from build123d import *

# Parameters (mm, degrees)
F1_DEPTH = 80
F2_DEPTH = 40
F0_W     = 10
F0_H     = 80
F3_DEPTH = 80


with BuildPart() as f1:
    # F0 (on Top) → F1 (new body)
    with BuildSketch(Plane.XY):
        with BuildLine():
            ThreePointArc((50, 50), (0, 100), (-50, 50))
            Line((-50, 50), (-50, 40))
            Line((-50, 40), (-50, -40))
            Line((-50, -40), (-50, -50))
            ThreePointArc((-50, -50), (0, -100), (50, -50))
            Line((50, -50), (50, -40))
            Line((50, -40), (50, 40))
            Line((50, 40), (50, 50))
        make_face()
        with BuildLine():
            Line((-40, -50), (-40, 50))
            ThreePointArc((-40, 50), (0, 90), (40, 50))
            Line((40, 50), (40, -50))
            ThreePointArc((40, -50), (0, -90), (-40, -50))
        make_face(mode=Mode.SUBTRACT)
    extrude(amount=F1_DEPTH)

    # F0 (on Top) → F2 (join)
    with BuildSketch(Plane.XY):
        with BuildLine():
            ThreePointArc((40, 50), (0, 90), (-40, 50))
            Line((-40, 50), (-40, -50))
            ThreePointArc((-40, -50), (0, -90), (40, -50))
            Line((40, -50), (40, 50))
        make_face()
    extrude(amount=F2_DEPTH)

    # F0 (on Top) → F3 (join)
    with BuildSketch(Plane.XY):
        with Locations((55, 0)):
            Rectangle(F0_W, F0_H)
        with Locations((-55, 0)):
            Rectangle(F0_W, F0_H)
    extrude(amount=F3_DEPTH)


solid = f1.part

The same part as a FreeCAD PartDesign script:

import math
import FreeCAD as App
import Part
import Sketcher
from FreeCAD import Vector
Q = App.Units.Quantity


def add_polygon(sketch, points):
    """Adds a closed chain of lines whose ends are joined by coincident constraints."""
    first, n = sketch.GeometryCount, len(points)
    for a, b in zip(points, points[1:] + points[:1]):
        sketch.addGeometry(Part.LineSegment(App.Vector(*a, 0), App.Vector(*b, 0)), False)
    for i in range(n):
        sketch.addConstraint(Sketcher.Constraint("Coincident", first + i, 2, first + (i + 1) % n, 1))

doc = App.newDocument("Part")
body = doc.addObject("PartDesign::Body", "Body")

# Sketch on XY plane
sketch1 = body.newObject("Sketcher::SketchObject", "Sketch")
sketch1.AttachmentSupport = (doc.getObject("XY_Plane"), [""])
sketch1.MapMode = "FlatFace"
sketch1.addGeometry(Part.ArcOfCircle(Part.Circle(Vector(0, 50, 0), Vector(0, 0, 1), 50), math.radians(0), math.radians(180)), False)
sketch1.addGeometry(Part.LineSegment(Vector(-50, 50, 0), Vector(-50, -50, 0)), False)
sketch1.addGeometry(Part.ArcOfCircle(Part.Circle(Vector(0, -50, 0), Vector(0, 0, 1), 50), math.radians(180), math.radians(360)), False)
sketch1.addGeometry(Part.LineSegment(Vector(50, -50, 0), Vector(50, 50, 0)), False)
sketch1.addGeometry(Part.ArcOfCircle(Part.Circle(Vector(0, -50, 0), Vector(0, 0, 1), 40), math.radians(180), math.radians(360)), False)
sketch1.addGeometry(Part.LineSegment(Vector(-40, -50, 0), Vector(-40, 50, 0)), False)
sketch1.addGeometry(Part.ArcOfCircle(Part.Circle(Vector(0, 50, 0), Vector(0, 0, 1), 40), math.radians(0), math.radians(180)), False)
sketch1.addGeometry(Part.LineSegment(Vector(40, 50, 0), Vector(40, -50, 0)), False)
sketch1.addConstraint(Sketcher.Constraint("Tangent", 0, 2, 1, 1))
sketch1.addConstraint(Sketcher.Constraint("Tangent", 1, 2, 2, 1))
sketch1.addConstraint(Sketcher.Constraint("Tangent", 2, 2, 3, 1))
sketch1.addConstraint(Sketcher.Constraint("Tangent", 3, 2, 0, 1))
sketch1.addConstraint(Sketcher.Constraint("Tangent", 4, 1, 5, 1))
sketch1.addConstraint(Sketcher.Constraint("Tangent", 5, 2, 6, 2))
sketch1.addConstraint(Sketcher.Constraint("Tangent", 6, 1, 7, 1))
sketch1.addConstraint(Sketcher.Constraint("Tangent", 7, 2, 4, 2))
sketch1.addConstraint(Sketcher.Constraint("Vertical", 1))
sketch1.addConstraint(Sketcher.Constraint("Vertical", 3))
sketch1.addConstraint(Sketcher.Constraint("Vertical", 5))
sketch1.addConstraint(Sketcher.Constraint("Vertical", 7))
sketch1.addConstraint(Sketcher.Constraint("Coincident", 4, 3, 2, 3))
sketch1.addConstraint(Sketcher.Constraint("Symmetric", 0, 3, 2, 3, -1, 1))
sketch1.addConstraint(Sketcher.Constraint("Horizontal", 6, 3, 0, 2))
sketch1.addConstraint(Sketcher.Constraint("Radius", 0, Q("50 mm")))
sketch1.addConstraint(Sketcher.Constraint("Radius", 4, Q("40 mm")))
sketch1.addConstraint(Sketcher.Constraint("DistanceY", 1, 2, 1, 1, Q("100 mm")))
pad1 = body.newObject("PartDesign::Pad", "Pad")
pad1.Profile = sketch1
pad1.Length = 80

# Sketch on XY plane
sketch2 = body.newObject("Sketcher::SketchObject", "Sketch001")
sketch2.AttachmentSupport = (doc.getObject("XY_Plane"), [""])
sketch2.MapMode = "FlatFace"
sketch2.addGeometry(Part.ArcOfCircle(Part.Circle(Vector(0, 50, 0), Vector(0, 0, 1), 40), math.radians(0), math.radians(180)), False)
sketch2.addGeometry(Part.LineSegment(Vector(-40, 50, 0), Vector(-40, -50, 0)), False)
sketch2.addGeometry(Part.ArcOfCircle(Part.Circle(Vector(0, -50, 0), Vector(0, 0, 1), 40), math.radians(180), math.radians(360)), False)
sketch2.addGeometry(Part.LineSegment(Vector(40, -50, 0), Vector(40, 50, 0)), False)
sketch2.addConstraint(Sketcher.Constraint("Tangent", 0, 2, 1, 1))
sketch2.addConstraint(Sketcher.Constraint("Tangent", 1, 2, 2, 1))
sketch2.addConstraint(Sketcher.Constraint("Tangent", 2, 2, 3, 1))
sketch2.addConstraint(Sketcher.Constraint("Tangent", 3, 2, 0, 1))
sketch2.addConstraint(Sketcher.Constraint("Vertical", 1))
sketch2.addConstraint(Sketcher.Constraint("Vertical", 3))
sketch2.addConstraint(Sketcher.Constraint("Symmetric", 0, 3, 2, 3, -1, 1))
sketch2.addConstraint(Sketcher.Constraint("Radius", 0, Q("40 mm")))
sketch2.addConstraint(Sketcher.Constraint("DistanceY", 1, 2, 1, 1, Q("100 mm")))
pad2 = body.newObject("PartDesign::Pad", "Pad001")
pad2.Profile = sketch2
pad2.Length = 40

# Sketch on XY plane
sketch3 = body.newObject("Sketcher::SketchObject", "Sketch002")
sketch3.AttachmentSupport = (doc.getObject("XY_Plane"), [""])
sketch3.MapMode = "FlatFace"
add_polygon(sketch3, [(50, 40), (50, -40), (60, -40), (60, 40)])  # lines 0-3
add_polygon(sketch3, [(-60, 40), (-60, -40), (-50, -40), (-50, 40)])  # lines 4-7
sketch3.addConstraint(Sketcher.Constraint("Vertical", 0))
sketch3.addConstraint(Sketcher.Constraint("Horizontal", 1))
sketch3.addConstraint(Sketcher.Constraint("Vertical", 2))
sketch3.addConstraint(Sketcher.Constraint("Horizontal", 3))
sketch3.addConstraint(Sketcher.Constraint("Vertical", 4))
sketch3.addConstraint(Sketcher.Constraint("Horizontal", 5))
sketch3.addConstraint(Sketcher.Constraint("Vertical", 6))
sketch3.addConstraint(Sketcher.Constraint("Horizontal", 7))
sketch3.addConstraint(Sketcher.Constraint("Symmetric", 2, 2, 4, 2, -1, 1))
sketch3.addConstraint(Sketcher.Constraint("Symmetric", 0, 2, 6, 2, -1, 1))
sketch3.addConstraint(Sketcher.Constraint("Horizontal", 1, 2, 4, 2))
sketch3.addConstraint(Sketcher.Constraint("DistanceX", 1, 1, 1, 2, Q("10 mm")))
sketch3.addConstraint(Sketcher.Constraint("DistanceY", 0, 2, 0, 1, Q("80 mm")))
sketch3.addConstraint(Sketcher.Constraint("DistanceX", -1, 1, 0, 2, Q("50 mm")))
pad3 = body.newObject("PartDesign::Pad", "Pad002")
pad3.Profile = sketch3
pad3.Length = 80

doc.recompute()
